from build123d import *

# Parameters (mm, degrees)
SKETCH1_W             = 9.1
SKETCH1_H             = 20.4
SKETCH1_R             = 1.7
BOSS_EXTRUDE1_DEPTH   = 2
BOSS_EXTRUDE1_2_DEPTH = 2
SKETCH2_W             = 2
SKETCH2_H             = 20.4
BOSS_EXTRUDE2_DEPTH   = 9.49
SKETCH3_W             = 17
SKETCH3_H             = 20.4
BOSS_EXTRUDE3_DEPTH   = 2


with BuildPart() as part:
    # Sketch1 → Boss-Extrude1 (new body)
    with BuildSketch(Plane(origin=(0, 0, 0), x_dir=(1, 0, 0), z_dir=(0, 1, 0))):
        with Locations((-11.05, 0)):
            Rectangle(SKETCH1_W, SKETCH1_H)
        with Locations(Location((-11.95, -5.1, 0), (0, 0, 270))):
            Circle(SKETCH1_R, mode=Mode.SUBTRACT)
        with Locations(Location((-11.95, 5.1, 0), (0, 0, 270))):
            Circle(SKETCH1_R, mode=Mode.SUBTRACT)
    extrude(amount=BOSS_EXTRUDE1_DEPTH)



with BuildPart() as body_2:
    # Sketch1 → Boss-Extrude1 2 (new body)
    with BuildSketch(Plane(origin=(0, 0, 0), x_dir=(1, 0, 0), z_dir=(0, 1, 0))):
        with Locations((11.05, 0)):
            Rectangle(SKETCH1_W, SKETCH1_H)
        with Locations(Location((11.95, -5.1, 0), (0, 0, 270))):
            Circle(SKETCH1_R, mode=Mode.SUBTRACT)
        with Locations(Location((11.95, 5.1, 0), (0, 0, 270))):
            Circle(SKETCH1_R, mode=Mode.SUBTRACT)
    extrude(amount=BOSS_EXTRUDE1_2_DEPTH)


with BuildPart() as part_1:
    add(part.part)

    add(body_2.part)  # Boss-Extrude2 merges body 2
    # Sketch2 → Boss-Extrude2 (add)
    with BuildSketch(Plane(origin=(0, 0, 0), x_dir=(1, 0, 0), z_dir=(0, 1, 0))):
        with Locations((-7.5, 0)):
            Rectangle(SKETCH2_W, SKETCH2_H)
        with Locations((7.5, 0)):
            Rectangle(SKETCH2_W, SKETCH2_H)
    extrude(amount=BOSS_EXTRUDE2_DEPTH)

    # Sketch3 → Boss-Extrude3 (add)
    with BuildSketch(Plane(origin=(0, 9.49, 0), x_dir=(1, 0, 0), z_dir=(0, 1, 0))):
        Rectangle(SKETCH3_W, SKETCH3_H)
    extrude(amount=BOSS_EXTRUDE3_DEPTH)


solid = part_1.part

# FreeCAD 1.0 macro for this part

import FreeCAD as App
import Part
import Sketcher
from FreeCAD import Vector

doc = App.newDocument("Part")
body = doc.addObject("PartDesign::Body", "Body")

sketch1 = body.newObject("Sketcher::SketchObject", "Sketch")
sketch1.AttachmentSupport = (doc.getObject("XZ_Plane"), [""])
sketch1.MapMode = "FlatFace"
sketch1.addGeometry([
    Part.LineSegment(Vector(-15.6, -10.2, 0), Vector(-15.6, 10.2, 0)),
    Part.LineSegment(Vector(-15.6, 10.2, 0), Vector(-6.5, 10.2, 0)),
    Part.LineSegment(Vector(-6.5, 10.2, 0), Vector(-6.5, -10.2, 0)),
    Part.LineSegment(Vector(-6.5, -10.2, 0), Vector(-15.6, -10.2, 0)),
    Part.Circle(Vector(-11.95, 5.1, 0), Vector(0, 0, 1), 1.7),
    Part.Circle(Vector(-11.95, -5.1, 0), Vector(0, 0, 1), 1.7),
], False)
sketch1.addConstraint([
    Sketcher.Constraint("Coincident", 0, 2, 1, 1),
    Sketcher.Constraint("Coincident", 1, 2, 2, 1),
    Sketcher.Constraint("Coincident", 2, 2, 3, 1),
    Sketcher.Constraint("Coincident", 3, 2, 0, 1),
    Sketcher.Constraint("Vertical", 0),
    Sketcher.Constraint("Horizontal", 1),
    Sketcher.Constraint("Vertical", 2),
    Sketcher.Constraint("Horizontal", 3),
    Sketcher.Constraint("Equal", 4, 5),
    Sketcher.Constraint("Symmetric", 4, 3, 5, 3, -1),
    Sketcher.Constraint("Diameter", 4, 3.4),
    Sketcher.Constraint("DistanceX", 1, 1, 1, 2, 9.1),
    Sketcher.Constraint("DistanceY", 0, 1, 0, 2, 20.4),
    Sketcher.Constraint("DistanceY", -1, 1, 4, 3, 5.1),
    Sketcher.Constraint("DistanceX", 0, 2, -1, 1, 15.6),
    Sketcher.Constraint("DistanceY", -1, 1, 0, 2, 10.2),
    Sketcher.Constraint("DistanceX", 4, 3, -1, 1, 11.95),
])
pad1 = body.newObject("PartDesign::Pad", "Pad")
pad1.Profile = sketch1
pad1.Length = 2
pad1.Reversed = True
body2 = doc.addObject("PartDesign::Body", "Body001")

sketch2 = body2.newObject("Sketcher::SketchObject", "Sketch001")
sketch2.AttachmentSupport = (doc.getObject("XZ_Plane001"), [""])
sketch2.MapMode = "FlatFace"
sketch2.addGeometry([
    Part.LineSegment(Vector(6.5, -10.2, 0), Vector(6.5, 10.2, 0)),
    Part.LineSegment(Vector(6.5, 10.2, 0), Vector(15.6, 10.2, 0)),
    Part.LineSegment(Vector(15.6, 10.2, 0), Vector(15.6, -10.2, 0)),
    Part.LineSegment(Vector(15.6, -10.2, 0), Vector(6.5, -10.2, 0)),
    Part.Circle(Vector(11.95, 5.1, 0), Vector(0, 0, 1), 1.7),
    Part.Circle(Vector(11.95, -5.1, 0), Vector(0, 0, 1), 1.7),
], False)
sketch2.addConstraint([
    Sketcher.Constraint("Coincident", 0, 2, 1, 1),
    Sketcher.Constraint("Coincident", 1, 2, 2, 1),
    Sketcher.Constraint("Coincident", 2, 2, 3, 1),
    Sketcher.Constraint("Coincident", 3, 2, 0, 1),
    Sketcher.Constraint("Vertical", 0),
    Sketcher.Constraint("Horizontal", 1),
    Sketcher.Constraint("Vertical", 2),
    Sketcher.Constraint("Horizontal", 3),
    Sketcher.Constraint("Equal", 4, 5),
    Sketcher.Constraint("Symmetric", 4, 3, 5, 3, -1),
    Sketcher.Constraint("Diameter", 4, 3.4),
    Sketcher.Constraint("DistanceX", 1, 1, 1, 2, 9.1),
    Sketcher.Constraint("DistanceY", 0, 1, 0, 2, 20.4),
    Sketcher.Constraint("DistanceY", -1, 1, 4, 3, 5.1),
    Sketcher.Constraint("DistanceX", -1, 1, 0, 2, 6.5),
    Sketcher.Constraint("DistanceY", -1, 1, 0, 2, 10.2),
    Sketcher.Constraint("DistanceX", -1, 1, 4, 3, 11.95),
])
pad2 = body2.newObject("PartDesign::Pad", "Pad001")
pad2.Profile = sketch2
pad2.Length = 2
pad2.Reversed = True
body.AllowCompound = True
doc.recompute()

boolean = body.newObject("PartDesign::Boolean", "Boolean")
boolean.Type = "Fuse"
boolean.addObjects([body2])

sketch3 = body.newObject("Sketcher::SketchObject", "Sketch002")
sketch3.AttachmentSupport = (doc.getObject("XZ_Plane"), [""])
sketch3.MapMode = "FlatFace"
sketch3.addGeometry([
    Part.LineSegment(Vector(-8.5, -10.2, 0), Vector(-8.5, 10.2, 0)),
    Part.LineSegment(Vector(-8.5, 10.2, 0), Vector(-6.5, 10.2, 0)),
    Part.LineSegment(Vector(-6.5, 10.2, 0), Vector(-6.5, -10.2, 0)),
    Part.LineSegment(Vector(-6.5, -10.2, 0), Vector(-8.5, -10.2, 0)),
    Part.LineSegment(Vector(6.5, -10.2, 0), Vector(6.5, 10.2, 0)),
    Part.LineSegment(Vector(6.5, 10.2, 0), Vector(8.5, 10.2, 0)),
    Part.LineSegment(Vector(8.5, 10.2, 0), Vector(8.5, -10.2, 0)),
    Part.LineSegment(Vector(8.5, -10.2, 0), Vector(6.5, -10.2, 0)),
], False)
sketch3.addConstraint([
    Sketcher.Constraint("Coincident", 0, 2, 1, 1),
    Sketcher.Constraint("Coincident", 1, 2, 2, 1),
    Sketcher.Constraint("Coincident", 2, 2, 3, 1),
    Sketcher.Constraint("Coincident", 3, 2, 0, 1),
    Sketcher.Constraint("Coincident", 4, 2, 5, 1),
    Sketcher.Constraint("Coincident", 5, 2, 6, 1),
    Sketcher.Constraint("Coincident", 6, 2, 7, 1),
    Sketcher.Constraint("Coincident", 7, 2, 4, 1),
    Sketcher.Constraint("Vertical", 0),
    Sketcher.Constraint("Horizontal", 1),
    Sketcher.Constraint("Vertical", 2),
    Sketcher.Constraint("Horizontal", 3),
    Sketcher.Constraint("Vertical", 4),
    Sketcher.Constraint("Horizontal", 5),
    Sketcher.Constraint("Vertical", 6),
    Sketcher.Constraint("Horizontal", 7),
    Sketcher.Constraint("Symmetric", 2, 2, 4, 2, -1, 1),
    Sketcher.Constraint("Symmetric", 0, 2, 6, 2, -1, 1),
    Sketcher.Constraint("Horizontal", 1, 2, 4, 2),
    Sketcher.Constraint("DistanceX", 1, 1, 1, 2, 2.0),
    Sketcher.Constraint("DistanceY", 0, 1, 0, 2, 20.4),
    Sketcher.Constraint("DistanceX", 1, 2, 4, 2, 13.0),
])
pad3 = body.newObject("PartDesign::Pad", "Pad002")
pad3.Profile = sketch3
pad3.Length = 9.49
pad3.Reversed = True

sketch4 = body.newObject("Sketcher::SketchObject", "Sketch003")
sketch4.AttachmentSupport = (doc.getObject("XZ_Plane"), [""])
sketch4.MapMode = "FlatFace"
sketch4.AttachmentOffset = App.Placement(Vector(0, 0, -9.49), App.Rotation())
sketch4.addGeometry([
    Part.LineSegment(Vector(-8.5, -10.2, 0), Vector(-8.5, 10.2, 0)),
    Part.LineSegment(Vector(-8.5, 10.2, 0), Vector(8.5, 10.2, 0)),
    Part.LineSegment(Vector(8.5, 10.2, 0), Vector(8.5, -10.2, 0)),
    Part.LineSegment(Vector(8.5, -10.2, 0), Vector(-8.5, -10.2, 0)),
], False)
sketch4.addConstraint([
    Sketcher.Constraint("Coincident", 0, 2, 1, 1),
    Sketcher.Constraint("Coincident", 1, 2, 2, 1),
    Sketcher.Constraint("Coincident", 2, 2, 3, 1),
    Sketcher.Constraint("Coincident", 3, 2, 0, 1),
    Sketcher.Constraint("Vertical", 0),
    Sketcher.Constraint("Horizontal", 1),
    Sketcher.Constraint("Vertical", 2),
    Sketcher.Constraint("Horizontal", 3),
    Sketcher.Constraint("Symmetric", 0, 2, 2, 2, -1, 1),
    Sketcher.Constraint("DistanceX", 1, 1, 1, 2, 17.0),
    Sketcher.Constraint("DistanceY", 0, 1, 0, 2, 20.4),
])
pad4 = body.newObject("PartDesign::Pad", "Pad003")
pad4.Profile = sketch4
pad4.Length = 2
pad4.Reversed = True

doc.recompute()
